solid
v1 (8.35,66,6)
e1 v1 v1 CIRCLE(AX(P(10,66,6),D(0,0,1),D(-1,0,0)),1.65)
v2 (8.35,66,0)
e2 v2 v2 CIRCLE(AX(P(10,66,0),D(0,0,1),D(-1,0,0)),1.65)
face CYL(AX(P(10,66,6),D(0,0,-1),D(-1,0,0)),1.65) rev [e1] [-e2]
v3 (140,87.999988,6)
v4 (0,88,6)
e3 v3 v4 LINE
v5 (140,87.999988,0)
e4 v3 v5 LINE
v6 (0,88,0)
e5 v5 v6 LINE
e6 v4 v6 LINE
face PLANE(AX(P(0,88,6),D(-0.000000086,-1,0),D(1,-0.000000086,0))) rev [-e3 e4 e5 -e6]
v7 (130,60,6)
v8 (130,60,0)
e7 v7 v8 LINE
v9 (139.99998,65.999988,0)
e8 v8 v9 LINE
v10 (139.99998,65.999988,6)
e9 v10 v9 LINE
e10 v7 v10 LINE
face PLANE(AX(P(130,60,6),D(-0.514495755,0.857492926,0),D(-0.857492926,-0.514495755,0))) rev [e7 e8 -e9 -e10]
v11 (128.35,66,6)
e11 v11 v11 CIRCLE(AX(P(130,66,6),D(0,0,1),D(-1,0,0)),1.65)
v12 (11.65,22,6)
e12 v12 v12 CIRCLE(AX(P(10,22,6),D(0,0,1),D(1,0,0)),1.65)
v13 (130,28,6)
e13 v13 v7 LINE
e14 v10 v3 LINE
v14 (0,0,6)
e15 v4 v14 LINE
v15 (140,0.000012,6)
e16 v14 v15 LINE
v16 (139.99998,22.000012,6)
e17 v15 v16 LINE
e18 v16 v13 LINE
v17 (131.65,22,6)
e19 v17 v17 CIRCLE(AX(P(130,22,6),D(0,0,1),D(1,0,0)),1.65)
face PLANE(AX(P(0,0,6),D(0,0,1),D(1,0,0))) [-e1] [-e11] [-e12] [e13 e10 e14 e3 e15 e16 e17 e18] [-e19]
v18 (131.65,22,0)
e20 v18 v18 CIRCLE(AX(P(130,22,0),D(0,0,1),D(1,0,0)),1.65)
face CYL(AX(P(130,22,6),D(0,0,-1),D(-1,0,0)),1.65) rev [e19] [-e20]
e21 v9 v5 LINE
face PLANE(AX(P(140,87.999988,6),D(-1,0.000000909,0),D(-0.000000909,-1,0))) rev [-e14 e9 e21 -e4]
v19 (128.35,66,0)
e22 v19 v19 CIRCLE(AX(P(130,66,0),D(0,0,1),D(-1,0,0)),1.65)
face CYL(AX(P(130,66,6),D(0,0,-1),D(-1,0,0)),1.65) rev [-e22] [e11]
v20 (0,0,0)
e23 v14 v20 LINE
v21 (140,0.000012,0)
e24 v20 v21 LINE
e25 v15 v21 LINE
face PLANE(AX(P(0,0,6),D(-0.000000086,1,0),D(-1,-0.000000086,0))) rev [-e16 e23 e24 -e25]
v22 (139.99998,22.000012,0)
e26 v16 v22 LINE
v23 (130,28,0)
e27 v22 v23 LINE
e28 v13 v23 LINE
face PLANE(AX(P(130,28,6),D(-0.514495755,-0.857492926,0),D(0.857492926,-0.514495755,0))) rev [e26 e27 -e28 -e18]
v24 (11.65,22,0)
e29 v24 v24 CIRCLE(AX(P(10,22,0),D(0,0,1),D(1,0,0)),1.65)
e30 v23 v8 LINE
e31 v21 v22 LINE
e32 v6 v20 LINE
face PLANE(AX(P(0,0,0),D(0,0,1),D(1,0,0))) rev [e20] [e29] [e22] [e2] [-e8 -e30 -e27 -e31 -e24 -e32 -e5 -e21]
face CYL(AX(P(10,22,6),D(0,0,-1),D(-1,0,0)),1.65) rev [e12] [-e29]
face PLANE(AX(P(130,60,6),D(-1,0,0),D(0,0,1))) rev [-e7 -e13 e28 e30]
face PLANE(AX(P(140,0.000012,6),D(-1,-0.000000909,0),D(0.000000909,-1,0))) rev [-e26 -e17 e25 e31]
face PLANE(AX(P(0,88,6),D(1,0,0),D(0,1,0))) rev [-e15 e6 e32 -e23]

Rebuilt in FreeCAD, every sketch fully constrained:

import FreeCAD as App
import Part
import Sketcher

doc = App.newDocument("Part")
body = doc.addObject("PartDesign::Body", "Body")

# Sketch on XY plane
sketch1 = body.newObject("Sketcher::SketchObject", "Sketch")
sketch1.AttachmentSupport = (doc.getObject("XY_Plane"), [""])
sketch1.MapMode = "FlatFace"
sketch1.addGeometry([
    Part.LineSegment(App.Vector(0, 0, 0), App.Vector(140, 0.000012, 0)),  # 0
    Part.LineSegment(App.Vector(140, 0.000012, 0), App.Vector(139.99998, 22.000012, 0)),  # 1
    Part.LineSegment(App.Vector(139.99998, 22.000012, 0), App.Vector(130, 28, 0)),  # 2
    Part.LineSegment(App.Vector(130, 28, 0), App.Vector(130, 60, 0)),  # 3
    Part.LineSegment(App.Vector(130, 60, 0), App.Vector(139.99998, 65.999988, 0)),  # 4
    Part.LineSegment(App.Vector(139.99998, 65.999988, 0), App.Vector(140, 87.999988, 0)),  # 5
    Part.LineSegment(App.Vector(140, 87.999988, 0), App.Vector(0, 88, 0)),  # 6
    Part.LineSegment(App.Vector(0, 88, 0), App.Vector(0, 0, 0)),  # 7
    Part.Circle(App.Vector(10, 22, 0), App.Vector(0, 0, 1), 1.65),  # 8
    Part.Circle(App.Vector(130, 22, 0), App.Vector(0, 0, 1), 1.65),  # 9
    Part.Circle(App.Vector(10, 66, 0), App.Vector(0, 0, 1), 1.65),  # 10
    Part.Circle(App.Vector(130, 66, 0), App.Vector(0, 0, 1), 1.65),  # 11
], False)
sketch1.addConstraint([
    Sketcher.Constraint("Coincident", 0, 2, 1, 1),
    Sketcher.Constraint("Coincident", 1, 2, 2, 1),
    Sketcher.Constraint("Coincident", 2, 2, 3, 1),
    Sketcher.Constraint("Coincident", 3, 2, 4, 1),
    Sketcher.Constraint("Coincident", 4, 2, 5, 1),
    Sketcher.Constraint("Coincident", 5, 2, 6, 1),
    Sketcher.Constraint("Coincident", 6, 2, 7, 1),
    Sketcher.Constraint("Coincident", 7, 2, 0, 1),
    Sketcher.Constraint("Vertical", 3),
    Sketcher.Constraint("Vertical", 7),
    Sketcher.Constraint("Coincident", 7, 2, -1, 1),
    Sketcher.Constraint("Diameter", 8, 3.3),
    Sketcher.Constraint("Diameter", 9, 3.3),
    Sketcher.Constraint("Diameter", 10, 3.3),
    Sketcher.Constraint("Diameter", 11, 3.3),
    Sketcher.Constraint("DistanceY", 3, 1, 3, 2, 32.0),
    Sketcher.Constraint("DistanceY", 7, 2, 7, 1, 88.0),
    Sketcher.Constraint("Distance", 0, 140.0),
    Sketcher.Constraint("Distance", 1, 22.0),
    Sketcher.Constraint("Distance", 5, 22.0),
    Sketcher.Constraint("Distance", 6, 140.0),
    Sketcher.Constraint("DistanceX", -1, 1, 8, 3, 10.0),
    Sketcher.Constraint("DistanceY", -1, 1, 8, 3, 22.0),
    Sketcher.Constraint("DistanceX", -1, 1, 9, 3, 130.0),
    Sketcher.Constraint("DistanceY", -1, 1, 9, 3, 22.0),
    Sketcher.Constraint("DistanceX", -1, 1, 10, 3, 10.0),
    Sketcher.Constraint("DistanceY", -1, 1, 10, 3, 66.0),
    Sketcher.Constraint("DistanceX", -1, 1, 11, 3, 130.0),
    Sketcher.Constraint("DistanceY", -1, 1, 11, 3, 66.0),
    Sketcher.Constraint("DistanceX", -1, 1, 2, 2, 130.0),
    Sketcher.Constraint("DistanceY", -1, 1, 2, 2, 28.0),
    Sketcher.Constraint("Distance", 2, 11.66188),
    Sketcher.Constraint("Distance", 4, 11.66188),
    Sketcher.Constraint("DistanceX", -1, 1, 1, 2, 139.99998),
    Sketcher.Constraint("DistanceX", -1, 1, 4, 2, 139.99998),
])
pad1 = body.newObject("PartDesign::Pad", "Pad")
pad1.Profile = sketch1
pad1.Length = 6

doc.recompute()
